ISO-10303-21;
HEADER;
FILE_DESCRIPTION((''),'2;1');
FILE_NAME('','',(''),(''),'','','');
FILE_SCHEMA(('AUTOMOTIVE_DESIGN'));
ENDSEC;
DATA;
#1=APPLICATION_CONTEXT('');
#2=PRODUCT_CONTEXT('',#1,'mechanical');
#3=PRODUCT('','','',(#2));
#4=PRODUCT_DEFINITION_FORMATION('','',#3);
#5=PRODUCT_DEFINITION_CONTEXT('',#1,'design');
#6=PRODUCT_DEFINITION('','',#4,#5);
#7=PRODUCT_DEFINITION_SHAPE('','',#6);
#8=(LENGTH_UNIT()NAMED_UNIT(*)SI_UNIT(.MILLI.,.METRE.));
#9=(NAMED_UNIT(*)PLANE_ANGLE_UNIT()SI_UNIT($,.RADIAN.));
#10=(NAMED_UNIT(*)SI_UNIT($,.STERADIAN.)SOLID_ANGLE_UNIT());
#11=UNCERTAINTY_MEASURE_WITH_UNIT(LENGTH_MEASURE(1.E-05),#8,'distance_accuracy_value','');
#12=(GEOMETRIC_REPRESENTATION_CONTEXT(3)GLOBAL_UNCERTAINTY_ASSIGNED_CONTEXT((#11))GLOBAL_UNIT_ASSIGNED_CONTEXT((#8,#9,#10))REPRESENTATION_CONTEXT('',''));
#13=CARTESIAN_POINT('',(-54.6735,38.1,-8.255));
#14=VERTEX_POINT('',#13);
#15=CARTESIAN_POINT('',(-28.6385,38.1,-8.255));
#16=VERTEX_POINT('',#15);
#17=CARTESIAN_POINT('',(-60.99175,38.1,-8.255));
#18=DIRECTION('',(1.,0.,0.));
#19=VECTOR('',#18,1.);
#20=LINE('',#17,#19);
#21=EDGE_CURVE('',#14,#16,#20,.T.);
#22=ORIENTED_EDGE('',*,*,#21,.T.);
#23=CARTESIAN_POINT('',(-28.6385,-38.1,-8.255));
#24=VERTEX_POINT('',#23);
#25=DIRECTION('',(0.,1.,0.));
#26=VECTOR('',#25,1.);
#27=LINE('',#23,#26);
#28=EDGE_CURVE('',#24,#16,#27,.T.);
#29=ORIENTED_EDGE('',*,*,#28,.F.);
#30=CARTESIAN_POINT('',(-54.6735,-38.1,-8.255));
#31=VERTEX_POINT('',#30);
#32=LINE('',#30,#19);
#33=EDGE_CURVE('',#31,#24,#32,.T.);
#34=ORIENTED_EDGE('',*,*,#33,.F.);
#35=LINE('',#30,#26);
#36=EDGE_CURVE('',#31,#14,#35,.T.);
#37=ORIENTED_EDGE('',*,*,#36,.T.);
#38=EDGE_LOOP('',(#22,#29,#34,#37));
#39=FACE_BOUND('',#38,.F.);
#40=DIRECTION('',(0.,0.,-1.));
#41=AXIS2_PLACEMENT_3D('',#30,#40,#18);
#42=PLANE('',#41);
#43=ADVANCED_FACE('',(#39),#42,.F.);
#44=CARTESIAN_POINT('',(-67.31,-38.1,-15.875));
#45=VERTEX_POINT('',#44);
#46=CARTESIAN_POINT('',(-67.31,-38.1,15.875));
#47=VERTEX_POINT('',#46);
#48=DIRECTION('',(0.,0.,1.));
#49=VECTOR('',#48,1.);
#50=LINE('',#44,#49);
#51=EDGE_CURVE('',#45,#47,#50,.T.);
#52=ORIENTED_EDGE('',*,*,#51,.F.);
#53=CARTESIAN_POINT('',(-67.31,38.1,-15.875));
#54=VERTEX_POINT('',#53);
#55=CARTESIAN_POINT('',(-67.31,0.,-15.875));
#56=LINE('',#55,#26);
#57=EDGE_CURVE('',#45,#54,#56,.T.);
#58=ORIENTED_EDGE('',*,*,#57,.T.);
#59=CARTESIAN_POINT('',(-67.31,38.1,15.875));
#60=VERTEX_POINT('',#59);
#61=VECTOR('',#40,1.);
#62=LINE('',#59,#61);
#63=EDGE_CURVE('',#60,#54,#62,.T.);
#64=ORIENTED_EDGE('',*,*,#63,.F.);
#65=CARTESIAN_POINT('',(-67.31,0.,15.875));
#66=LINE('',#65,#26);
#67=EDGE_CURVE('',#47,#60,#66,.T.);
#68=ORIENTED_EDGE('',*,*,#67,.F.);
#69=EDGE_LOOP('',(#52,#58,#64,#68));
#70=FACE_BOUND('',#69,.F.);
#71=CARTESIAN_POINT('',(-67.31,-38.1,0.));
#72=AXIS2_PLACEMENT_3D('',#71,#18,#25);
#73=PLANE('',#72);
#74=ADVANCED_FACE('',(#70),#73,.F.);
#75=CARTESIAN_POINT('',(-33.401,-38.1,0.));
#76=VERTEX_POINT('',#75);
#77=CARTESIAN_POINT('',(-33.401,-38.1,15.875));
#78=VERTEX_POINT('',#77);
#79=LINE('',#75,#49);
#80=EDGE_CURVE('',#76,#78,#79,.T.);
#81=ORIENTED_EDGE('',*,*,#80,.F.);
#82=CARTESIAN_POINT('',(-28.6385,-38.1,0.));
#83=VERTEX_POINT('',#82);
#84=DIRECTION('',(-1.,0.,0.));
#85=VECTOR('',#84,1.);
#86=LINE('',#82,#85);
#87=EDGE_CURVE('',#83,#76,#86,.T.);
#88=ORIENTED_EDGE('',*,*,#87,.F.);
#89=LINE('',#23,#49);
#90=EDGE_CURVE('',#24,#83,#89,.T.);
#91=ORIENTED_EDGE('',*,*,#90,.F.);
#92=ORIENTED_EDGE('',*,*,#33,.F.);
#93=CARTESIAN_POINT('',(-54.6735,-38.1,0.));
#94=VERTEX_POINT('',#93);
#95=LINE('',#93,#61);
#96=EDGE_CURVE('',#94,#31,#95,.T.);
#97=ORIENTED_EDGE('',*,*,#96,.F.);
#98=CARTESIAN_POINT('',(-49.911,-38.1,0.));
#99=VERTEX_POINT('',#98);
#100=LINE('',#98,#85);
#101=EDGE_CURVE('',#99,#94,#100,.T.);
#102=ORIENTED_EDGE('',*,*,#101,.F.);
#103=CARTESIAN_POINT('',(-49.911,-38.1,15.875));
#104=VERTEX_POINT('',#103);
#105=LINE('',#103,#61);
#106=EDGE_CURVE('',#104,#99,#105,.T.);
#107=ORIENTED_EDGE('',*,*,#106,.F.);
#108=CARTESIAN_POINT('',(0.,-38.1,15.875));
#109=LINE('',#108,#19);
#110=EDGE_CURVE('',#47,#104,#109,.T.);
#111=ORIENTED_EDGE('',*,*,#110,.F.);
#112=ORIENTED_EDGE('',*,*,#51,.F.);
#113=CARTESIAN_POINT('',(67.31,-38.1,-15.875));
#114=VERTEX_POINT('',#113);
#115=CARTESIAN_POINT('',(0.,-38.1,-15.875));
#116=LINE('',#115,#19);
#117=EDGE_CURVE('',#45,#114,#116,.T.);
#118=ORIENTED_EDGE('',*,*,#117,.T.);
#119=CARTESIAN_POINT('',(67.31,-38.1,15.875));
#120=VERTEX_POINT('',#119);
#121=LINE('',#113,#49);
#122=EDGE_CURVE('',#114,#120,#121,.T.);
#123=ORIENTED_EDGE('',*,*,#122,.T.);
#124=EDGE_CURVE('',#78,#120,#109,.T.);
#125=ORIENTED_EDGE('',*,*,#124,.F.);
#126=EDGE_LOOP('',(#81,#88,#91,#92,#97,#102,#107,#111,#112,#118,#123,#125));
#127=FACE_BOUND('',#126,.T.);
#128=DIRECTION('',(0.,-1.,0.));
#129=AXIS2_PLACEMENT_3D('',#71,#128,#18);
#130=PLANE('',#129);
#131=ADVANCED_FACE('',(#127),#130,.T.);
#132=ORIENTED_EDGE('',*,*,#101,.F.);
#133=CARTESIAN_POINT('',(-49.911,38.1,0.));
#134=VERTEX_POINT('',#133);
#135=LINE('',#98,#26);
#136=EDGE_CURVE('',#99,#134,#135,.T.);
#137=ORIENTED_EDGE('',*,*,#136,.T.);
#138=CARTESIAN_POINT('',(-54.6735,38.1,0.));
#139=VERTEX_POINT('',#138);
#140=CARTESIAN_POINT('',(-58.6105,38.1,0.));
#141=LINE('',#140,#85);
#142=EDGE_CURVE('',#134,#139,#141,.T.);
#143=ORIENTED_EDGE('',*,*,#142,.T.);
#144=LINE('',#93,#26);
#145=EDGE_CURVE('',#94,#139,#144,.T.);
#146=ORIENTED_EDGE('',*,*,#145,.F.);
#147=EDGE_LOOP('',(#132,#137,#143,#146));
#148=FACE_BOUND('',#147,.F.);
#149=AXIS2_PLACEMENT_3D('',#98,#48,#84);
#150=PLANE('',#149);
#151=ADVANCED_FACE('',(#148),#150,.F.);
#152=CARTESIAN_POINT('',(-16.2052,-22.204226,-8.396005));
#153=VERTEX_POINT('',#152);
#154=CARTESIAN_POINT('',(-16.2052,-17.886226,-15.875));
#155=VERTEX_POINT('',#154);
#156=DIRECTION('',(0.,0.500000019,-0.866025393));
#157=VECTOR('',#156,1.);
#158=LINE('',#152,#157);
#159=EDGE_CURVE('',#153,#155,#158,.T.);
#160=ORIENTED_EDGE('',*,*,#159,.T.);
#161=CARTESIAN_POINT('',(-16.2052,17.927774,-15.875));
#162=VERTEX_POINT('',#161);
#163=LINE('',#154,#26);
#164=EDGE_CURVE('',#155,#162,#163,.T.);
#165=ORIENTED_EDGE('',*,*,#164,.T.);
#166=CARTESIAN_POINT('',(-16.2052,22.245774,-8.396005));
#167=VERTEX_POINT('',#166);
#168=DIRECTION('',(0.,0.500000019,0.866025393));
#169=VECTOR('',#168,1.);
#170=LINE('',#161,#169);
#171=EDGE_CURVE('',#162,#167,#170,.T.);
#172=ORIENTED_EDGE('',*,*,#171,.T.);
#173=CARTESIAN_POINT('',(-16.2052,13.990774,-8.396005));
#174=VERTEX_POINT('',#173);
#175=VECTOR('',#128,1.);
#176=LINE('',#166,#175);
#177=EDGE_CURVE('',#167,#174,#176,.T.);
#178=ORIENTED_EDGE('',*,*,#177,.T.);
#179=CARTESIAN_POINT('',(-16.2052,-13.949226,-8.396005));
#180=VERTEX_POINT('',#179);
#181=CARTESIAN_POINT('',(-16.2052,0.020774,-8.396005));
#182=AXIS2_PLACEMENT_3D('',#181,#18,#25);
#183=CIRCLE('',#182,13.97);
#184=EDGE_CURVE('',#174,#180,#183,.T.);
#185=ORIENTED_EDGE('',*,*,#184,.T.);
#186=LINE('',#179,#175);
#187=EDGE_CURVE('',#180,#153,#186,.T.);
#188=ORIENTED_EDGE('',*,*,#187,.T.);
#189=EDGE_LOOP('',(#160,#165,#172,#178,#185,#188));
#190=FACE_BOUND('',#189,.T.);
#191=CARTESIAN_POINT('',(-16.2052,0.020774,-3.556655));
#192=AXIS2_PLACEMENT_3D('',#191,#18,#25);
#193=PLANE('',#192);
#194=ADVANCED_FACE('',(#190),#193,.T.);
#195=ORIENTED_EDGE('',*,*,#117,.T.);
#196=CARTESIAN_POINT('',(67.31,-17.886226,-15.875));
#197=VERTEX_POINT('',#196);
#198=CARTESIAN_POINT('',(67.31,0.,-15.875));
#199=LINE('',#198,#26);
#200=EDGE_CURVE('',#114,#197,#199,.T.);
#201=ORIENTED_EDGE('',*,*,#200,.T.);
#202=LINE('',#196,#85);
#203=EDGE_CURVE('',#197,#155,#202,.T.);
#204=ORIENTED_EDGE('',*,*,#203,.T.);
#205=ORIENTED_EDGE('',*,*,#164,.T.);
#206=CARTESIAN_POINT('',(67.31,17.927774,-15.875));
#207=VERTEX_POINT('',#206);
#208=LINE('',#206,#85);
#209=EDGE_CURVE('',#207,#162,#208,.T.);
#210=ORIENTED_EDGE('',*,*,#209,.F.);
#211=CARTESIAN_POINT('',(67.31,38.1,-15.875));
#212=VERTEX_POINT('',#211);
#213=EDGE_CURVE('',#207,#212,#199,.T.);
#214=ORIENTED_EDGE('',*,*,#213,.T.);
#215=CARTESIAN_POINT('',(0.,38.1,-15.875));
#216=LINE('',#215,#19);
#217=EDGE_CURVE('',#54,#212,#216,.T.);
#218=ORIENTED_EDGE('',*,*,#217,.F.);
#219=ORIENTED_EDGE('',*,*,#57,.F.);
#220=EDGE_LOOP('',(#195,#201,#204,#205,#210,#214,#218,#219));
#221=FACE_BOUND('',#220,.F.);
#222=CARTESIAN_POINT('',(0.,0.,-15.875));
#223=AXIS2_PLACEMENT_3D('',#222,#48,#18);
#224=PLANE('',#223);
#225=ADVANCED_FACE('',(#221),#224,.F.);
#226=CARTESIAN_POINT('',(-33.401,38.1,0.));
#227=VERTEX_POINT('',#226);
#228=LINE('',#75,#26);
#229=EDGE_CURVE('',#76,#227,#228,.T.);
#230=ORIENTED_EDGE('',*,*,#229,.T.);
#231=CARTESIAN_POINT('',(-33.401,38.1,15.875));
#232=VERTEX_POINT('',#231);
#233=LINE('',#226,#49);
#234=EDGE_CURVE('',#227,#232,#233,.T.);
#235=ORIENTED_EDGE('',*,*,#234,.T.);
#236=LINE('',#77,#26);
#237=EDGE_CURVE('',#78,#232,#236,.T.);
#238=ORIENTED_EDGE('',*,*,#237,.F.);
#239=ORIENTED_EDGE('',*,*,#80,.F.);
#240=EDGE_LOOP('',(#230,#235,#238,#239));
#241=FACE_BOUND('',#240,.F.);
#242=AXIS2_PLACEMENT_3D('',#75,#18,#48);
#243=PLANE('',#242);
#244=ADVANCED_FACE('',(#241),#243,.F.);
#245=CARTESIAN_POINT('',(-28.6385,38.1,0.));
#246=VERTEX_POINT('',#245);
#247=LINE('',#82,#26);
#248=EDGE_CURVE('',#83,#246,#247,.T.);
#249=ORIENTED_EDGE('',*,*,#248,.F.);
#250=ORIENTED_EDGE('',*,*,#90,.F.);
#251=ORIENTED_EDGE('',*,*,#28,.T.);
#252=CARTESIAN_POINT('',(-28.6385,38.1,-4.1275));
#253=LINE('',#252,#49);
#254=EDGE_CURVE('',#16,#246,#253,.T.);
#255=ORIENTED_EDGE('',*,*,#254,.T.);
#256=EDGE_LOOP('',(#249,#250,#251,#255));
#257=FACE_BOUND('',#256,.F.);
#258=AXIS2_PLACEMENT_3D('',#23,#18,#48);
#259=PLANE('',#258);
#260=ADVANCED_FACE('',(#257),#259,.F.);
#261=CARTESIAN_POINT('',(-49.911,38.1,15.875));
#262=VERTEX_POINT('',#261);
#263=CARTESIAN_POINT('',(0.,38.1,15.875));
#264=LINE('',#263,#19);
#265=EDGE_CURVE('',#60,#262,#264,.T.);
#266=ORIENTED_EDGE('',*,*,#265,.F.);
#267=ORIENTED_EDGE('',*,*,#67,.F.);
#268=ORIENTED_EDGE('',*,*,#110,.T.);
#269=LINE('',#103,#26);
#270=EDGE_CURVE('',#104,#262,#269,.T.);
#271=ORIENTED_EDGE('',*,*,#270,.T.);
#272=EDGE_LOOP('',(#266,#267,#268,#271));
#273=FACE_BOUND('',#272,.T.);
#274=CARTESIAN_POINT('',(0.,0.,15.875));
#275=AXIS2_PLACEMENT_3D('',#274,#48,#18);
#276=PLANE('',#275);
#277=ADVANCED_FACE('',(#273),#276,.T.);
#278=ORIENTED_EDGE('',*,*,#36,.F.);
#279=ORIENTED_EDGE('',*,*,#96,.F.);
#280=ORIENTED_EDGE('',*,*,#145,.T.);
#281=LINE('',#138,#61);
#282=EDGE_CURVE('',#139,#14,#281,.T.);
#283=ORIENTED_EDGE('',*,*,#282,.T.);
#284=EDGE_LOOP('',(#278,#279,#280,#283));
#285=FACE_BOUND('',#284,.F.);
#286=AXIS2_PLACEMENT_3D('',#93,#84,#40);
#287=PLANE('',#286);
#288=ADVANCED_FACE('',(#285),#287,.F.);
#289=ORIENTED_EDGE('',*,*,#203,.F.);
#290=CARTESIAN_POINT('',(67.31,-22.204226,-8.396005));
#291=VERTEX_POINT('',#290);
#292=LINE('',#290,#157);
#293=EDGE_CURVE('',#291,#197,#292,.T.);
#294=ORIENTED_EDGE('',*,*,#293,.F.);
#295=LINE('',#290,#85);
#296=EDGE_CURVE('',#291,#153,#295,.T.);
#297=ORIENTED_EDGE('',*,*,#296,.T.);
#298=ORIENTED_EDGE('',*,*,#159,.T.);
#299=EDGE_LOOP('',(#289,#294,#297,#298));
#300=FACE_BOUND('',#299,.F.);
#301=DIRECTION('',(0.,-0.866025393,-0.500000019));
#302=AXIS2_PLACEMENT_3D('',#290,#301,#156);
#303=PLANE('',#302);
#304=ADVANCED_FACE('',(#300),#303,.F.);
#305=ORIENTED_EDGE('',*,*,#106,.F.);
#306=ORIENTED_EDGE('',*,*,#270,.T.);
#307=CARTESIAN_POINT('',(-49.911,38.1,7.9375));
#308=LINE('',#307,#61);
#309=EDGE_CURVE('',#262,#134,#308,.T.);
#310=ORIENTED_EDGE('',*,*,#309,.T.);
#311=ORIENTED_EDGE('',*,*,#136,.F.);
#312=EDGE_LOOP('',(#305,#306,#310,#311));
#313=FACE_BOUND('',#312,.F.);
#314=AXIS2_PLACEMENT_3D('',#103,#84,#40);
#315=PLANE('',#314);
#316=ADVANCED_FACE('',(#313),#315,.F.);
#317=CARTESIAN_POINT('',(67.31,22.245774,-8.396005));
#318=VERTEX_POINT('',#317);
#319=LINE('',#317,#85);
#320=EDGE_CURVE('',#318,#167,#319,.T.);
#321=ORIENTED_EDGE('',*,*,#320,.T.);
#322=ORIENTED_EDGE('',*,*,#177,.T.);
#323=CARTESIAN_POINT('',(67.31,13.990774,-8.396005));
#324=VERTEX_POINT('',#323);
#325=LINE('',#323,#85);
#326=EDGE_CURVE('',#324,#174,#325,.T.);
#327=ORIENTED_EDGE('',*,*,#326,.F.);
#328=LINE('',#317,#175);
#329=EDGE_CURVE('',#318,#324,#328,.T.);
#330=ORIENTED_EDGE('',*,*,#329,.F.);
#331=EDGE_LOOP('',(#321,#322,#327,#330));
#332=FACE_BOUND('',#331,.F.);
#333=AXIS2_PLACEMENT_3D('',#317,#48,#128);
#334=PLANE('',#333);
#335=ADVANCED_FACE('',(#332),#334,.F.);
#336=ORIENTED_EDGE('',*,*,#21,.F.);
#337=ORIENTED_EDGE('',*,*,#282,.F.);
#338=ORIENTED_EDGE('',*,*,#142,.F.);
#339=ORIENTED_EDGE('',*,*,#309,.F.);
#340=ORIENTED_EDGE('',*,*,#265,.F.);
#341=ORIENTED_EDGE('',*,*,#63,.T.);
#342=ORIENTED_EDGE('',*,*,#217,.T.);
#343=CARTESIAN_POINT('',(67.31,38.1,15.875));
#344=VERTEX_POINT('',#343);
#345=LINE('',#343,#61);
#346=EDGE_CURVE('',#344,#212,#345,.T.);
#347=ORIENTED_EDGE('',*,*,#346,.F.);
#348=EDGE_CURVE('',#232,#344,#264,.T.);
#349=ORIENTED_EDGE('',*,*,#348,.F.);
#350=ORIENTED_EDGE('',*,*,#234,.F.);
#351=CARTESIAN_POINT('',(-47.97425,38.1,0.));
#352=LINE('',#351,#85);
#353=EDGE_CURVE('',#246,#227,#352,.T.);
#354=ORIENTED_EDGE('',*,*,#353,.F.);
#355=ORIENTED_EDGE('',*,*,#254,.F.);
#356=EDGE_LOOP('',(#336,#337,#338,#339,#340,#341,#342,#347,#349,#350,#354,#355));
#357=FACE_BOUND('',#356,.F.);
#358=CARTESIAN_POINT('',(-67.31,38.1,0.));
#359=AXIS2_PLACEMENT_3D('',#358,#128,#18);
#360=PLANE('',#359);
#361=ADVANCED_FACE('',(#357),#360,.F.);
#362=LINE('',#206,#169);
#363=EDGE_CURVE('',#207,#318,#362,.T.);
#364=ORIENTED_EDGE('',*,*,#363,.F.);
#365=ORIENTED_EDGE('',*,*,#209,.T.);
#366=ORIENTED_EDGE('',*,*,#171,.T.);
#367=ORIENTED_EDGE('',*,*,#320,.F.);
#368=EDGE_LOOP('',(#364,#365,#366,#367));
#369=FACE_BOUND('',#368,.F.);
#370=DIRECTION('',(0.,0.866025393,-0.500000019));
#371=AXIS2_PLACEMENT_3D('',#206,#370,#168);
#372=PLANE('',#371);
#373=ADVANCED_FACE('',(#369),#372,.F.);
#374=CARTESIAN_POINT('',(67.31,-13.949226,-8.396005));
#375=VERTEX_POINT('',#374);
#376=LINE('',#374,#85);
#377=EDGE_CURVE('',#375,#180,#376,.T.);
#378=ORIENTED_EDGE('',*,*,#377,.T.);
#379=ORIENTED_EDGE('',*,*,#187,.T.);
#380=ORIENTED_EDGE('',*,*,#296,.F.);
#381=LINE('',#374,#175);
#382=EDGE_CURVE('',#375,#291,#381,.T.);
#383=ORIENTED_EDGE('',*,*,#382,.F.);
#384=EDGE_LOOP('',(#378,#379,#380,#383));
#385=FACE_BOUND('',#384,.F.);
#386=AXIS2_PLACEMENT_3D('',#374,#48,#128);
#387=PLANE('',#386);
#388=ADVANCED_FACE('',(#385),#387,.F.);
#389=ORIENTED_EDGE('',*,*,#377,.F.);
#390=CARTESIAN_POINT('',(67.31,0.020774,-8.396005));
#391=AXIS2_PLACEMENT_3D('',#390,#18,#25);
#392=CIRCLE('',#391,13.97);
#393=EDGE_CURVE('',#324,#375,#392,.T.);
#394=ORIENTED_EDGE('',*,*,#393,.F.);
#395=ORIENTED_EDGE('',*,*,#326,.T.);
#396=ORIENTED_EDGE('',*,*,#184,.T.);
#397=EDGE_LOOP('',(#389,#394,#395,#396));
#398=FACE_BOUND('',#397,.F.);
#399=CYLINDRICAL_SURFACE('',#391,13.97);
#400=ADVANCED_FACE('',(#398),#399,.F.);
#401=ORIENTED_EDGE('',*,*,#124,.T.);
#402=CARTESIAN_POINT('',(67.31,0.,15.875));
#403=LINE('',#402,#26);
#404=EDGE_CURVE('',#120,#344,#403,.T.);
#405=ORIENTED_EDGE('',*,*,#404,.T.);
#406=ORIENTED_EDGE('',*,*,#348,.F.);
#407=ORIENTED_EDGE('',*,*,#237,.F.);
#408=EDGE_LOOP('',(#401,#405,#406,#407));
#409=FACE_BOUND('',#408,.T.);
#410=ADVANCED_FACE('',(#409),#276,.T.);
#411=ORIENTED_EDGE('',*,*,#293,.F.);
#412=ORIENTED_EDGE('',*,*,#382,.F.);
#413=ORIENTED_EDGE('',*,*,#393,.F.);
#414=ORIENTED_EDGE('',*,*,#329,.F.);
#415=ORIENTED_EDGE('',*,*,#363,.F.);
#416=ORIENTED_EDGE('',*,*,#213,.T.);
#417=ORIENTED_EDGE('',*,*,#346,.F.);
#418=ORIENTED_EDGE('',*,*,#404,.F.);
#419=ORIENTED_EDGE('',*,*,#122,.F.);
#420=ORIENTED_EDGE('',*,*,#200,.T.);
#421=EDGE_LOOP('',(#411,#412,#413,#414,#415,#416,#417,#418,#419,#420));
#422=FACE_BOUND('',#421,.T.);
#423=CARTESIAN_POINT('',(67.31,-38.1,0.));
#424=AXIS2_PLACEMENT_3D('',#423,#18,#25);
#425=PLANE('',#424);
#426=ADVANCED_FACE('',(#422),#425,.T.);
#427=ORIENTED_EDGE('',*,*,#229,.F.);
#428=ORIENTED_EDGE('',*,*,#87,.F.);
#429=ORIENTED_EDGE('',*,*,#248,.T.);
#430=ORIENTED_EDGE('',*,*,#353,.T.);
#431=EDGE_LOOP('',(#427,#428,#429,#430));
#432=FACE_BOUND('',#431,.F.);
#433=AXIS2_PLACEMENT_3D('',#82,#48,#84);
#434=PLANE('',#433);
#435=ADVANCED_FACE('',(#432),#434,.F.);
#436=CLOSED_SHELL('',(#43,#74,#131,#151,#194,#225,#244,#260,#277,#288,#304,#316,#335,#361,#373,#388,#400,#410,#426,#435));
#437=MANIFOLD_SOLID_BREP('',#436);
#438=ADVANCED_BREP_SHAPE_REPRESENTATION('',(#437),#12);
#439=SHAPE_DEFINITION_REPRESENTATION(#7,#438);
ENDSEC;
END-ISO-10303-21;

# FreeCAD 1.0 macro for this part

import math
import FreeCAD as App
import Part
import Sketcher
from FreeCAD import Vector
Q = App.Units.Quantity


def add_polygon(sketch, points):
    """Adds a closed chain of lines whose ends are joined by coincident constraints."""
    first, n = sketch.GeometryCount, len(points)
    for a, b in zip(points, points[1:] + points[:1]):
        sketch.addGeometry(Part.LineSegment(App.Vector(*a, 0), App.Vector(*b, 0)), False)
    for i in range(n):
        sketch.addConstraint(Sketcher.Constraint("Coincident", first + i, 2, first + (i + 1) % n, 1))

doc = App.newDocument("Part")
body = doc.addObject("PartDesign::Body", "Body")

# Sketch on XY plane
sketch1 = body.newObject("Sketcher::SketchObject", "Sketch")
sketch1.AttachmentSupport = (doc.getObject("XY_Plane"), [""])
sketch1.MapMode = "FlatFace"
add_polygon(sketch1, [(-67, 38), (-67, -38), (67, -38), (67, 38)])  # lines 0-3
sketch1.addConstraint([
    Sketcher.Constraint("Vertical", 0),
    Sketcher.Constraint("Horizontal", 1),
    Sketcher.Constraint("Vertical", 2),
    Sketcher.Constraint("Horizontal", 3),
    Sketcher.Constraint("Symmetric", 0, 2, 2, 2, -1, 1),
    Sketcher.Constraint("DistanceY", 0, 2, 0, 1, Q("3 in")),
    Sketcher.Constraint("DistanceX", 1, 1, 1, 2, Q("5.3 in")),
])
pad1 = body.newObject("PartDesign::Pad", "Pad")
pad1.Profile = sketch1
pad1.Length = Q("1.25 in")
pad1.Midplane = True

# Sketch on XZ plane
sketch2 = body.newObject("Sketcher::SketchObject", "Sketch001")
sketch2.AttachmentSupport = (doc.getObject("XZ_Plane"), [""])
sketch2.MapMode = "FlatFace"
sketch2.AttachmentOffset = App.Placement(Vector(0, 0, 1.5 * 25.4), App.Rotation())
add_polygon(sketch2, [(-33.4, 15.9), (-49.9, 15.9), (-49.9, 0), (-54.7, 0), (-54.7, -8.3), (-28.6, -8.3), (-28.6, 0), (-33.4, 0)])  # lines 0-7
sketch2.addConstraint([
    Sketcher.Constraint("Horizontal", 0),
    Sketcher.Constraint("Vertical", 1),
    Sketcher.Constraint("Horizontal", 2),
    Sketcher.Constraint("Vertical", 3),
    Sketcher.Constraint("Horizontal", 4),
    Sketcher.Constraint("Vertical", 5),
    Sketcher.Constraint("Horizontal", 6),
    Sketcher.Constraint("Vertical", 7),
    Sketcher.Constraint("PointOnObject", 1, 2, -1),
    Sketcher.Constraint("PointOnObject", 5, 2, -1),
    Sketcher.Constraint("Equal", 2, 6),
    Sketcher.Constraint("DistanceX", 0, 2, 0, 1, Q("0.65 in")),
    Sketcher.Constraint("DistanceX", 2, 2, 2, 1, Q("0.1875 in")),
    Sketcher.Constraint("DistanceY", 1, 2, 1, 1, Q("0.625 in")),
    Sketcher.Constraint("DistanceY", 3, 2, 3, 1, Q("0.325 in")),
    Sketcher.Constraint("DistanceX", 0, 2, -1, 1, Q("1.965 in")),
])
pocket1 = body.newObject("PartDesign::Pocket", "Pocket")
pocket1.Profile = sketch2
pocket1.Type = "ThroughAll"

# Sketch on YZ plane
sketch3 = body.newObject("Sketcher::SketchObject", "Sketch002")
sketch3.AttachmentSupport = (doc.getObject("YZ_Plane"), [""])
sketch3.MapMode = "FlatFace"
sketch3.AttachmentOffset = App.Placement(Vector(0, 0, 2.65 * 25.4), App.Rotation())
sketch3.addGeometry([
    Part.ArcOfCircle(Part.Circle(Vector(0, -8, 0), Vector(0, 0, 1), 14), math.radians(0), math.radians(180)),  # 0
    Part.LineSegment(Vector(-14, -8, 0), Vector(-22, -8, 0)),  # 1
    Part.LineSegment(Vector(-22, -8, 0), Vector(-18, -16, 0)),  # 2
    Part.LineSegment(Vector(-18, -16, 0), Vector(18, -16, 0)),  # 3
    Part.LineSegment(Vector(18, -16, 0), Vector(22, -8, 0)),  # 4
    Part.LineSegment(Vector(22, -8, 0), Vector(14, -8, 0)),  # 5
], False)
sketch3.addConstraint([
    Sketcher.Constraint("Coincident", 0, 2, 1, 1),
    Sketcher.Constraint("Coincident", 1, 2, 2, 1),
    Sketcher.Constraint("Coincident", 2, 2, 3, 1),
    Sketcher.Constraint("Coincident", 3, 2, 4, 1),
    Sketcher.Constraint("Coincident", 4, 2, 5, 1),
    Sketcher.Constraint("Coincident", 5, 2, 0, 1),
    Sketcher.Constraint("Horizontal", 1),
    Sketcher.Constraint("Horizontal", 3),
    Sketcher.Constraint("Horizontal", 5),
    Sketcher.Constraint("Horizontal", 1, 2, 4, 2),
    Sketcher.Constraint("Equal", 1, 5),
    Sketcher.Constraint("Equal", 2, 4),
    Sketcher.Constraint("Radius", 0, Q("0.55 in")),
    Sketcher.Constraint("Angle", 2, Q("-59.999999 deg")),
    Sketcher.Constraint("DistanceX", 3, 1, 3, 2, Q("1.41 in")),
    Sketcher.Constraint("Distance", 2, Q("0.34 in")),
    Sketcher.Constraint("DistanceY", 2, 2, -1, 1, Q("0.625 in")),
    Sketcher.Constraint("DistanceX", -1, 1, 0, 3, Q("0.020774 mm")),
    Sketcher.Constraint("DistanceY", 0, 3, -1, 1, Q("8.396005 mm")),
])
pocket2 = body.newObject("PartDesign::Pocket", "Pocket001")
pocket2.Profile = sketch3
pocket2.Length = Q("3.288 in")
body2 = doc.addObject("PartDesign::Body", "Body001")
doc.recompute()

body2.BaseFeature = body
doc.recompute()
body.Visibility = False

doc.recompute()
